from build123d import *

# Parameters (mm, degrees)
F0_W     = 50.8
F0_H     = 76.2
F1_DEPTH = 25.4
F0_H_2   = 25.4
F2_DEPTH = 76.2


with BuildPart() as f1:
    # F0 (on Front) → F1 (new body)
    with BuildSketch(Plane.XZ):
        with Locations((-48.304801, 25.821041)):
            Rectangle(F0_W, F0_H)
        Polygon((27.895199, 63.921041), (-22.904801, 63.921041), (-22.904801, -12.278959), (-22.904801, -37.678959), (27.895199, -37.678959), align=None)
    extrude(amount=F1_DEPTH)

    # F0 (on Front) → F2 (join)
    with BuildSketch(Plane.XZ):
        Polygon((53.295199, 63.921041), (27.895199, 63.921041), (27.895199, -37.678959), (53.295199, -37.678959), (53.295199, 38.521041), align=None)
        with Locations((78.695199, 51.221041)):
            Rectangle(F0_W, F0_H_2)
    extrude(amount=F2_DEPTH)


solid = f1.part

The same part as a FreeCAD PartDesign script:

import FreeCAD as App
import Part
import Sketcher
Q = App.Units.Quantity

doc = App.newDocument("Part")
params = doc.addObject("Spreadsheet::Sheet", "Params")
for row, (alias, value) in enumerate([
    ("sketch1_width", "2 in"),
    ("sketch1_height", "3 in"),
    ("pad1_length", "1 in"),
    ("sketch2_width", "1 in"),
    ("sketch2_width2", "2 in"),
    ("pad2_length", "3 in"),
], start=1):
    params.set(f"A{row}", alias)
    params.set(f"B{row}", "=" + value)
    params.setAlias(f"B{row}", alias)

body = doc.addObject("PartDesign::Body", "Body")

# Sketch on XZ plane
sketch1 = doc.addObject("Sketcher::SketchObject", "Sketch")
body.addObject(sketch1)
sketch1.AttachmentSupport = (doc.XZ_Plane, [""])
sketch1.MapMode = "FlatFace"
sketch1.addGeometry([
    Part.LineSegment(App.Vector(-73.704801, 63.921041, 0), App.Vector(-73.704801, -12.278959, 0)),  # 0
    Part.LineSegment(App.Vector(-73.704801, -12.278959, 0), App.Vector(-22.904801, -12.278959, 0)),  # 1
    Part.LineSegment(App.Vector(-22.904801, -12.278959, 0), App.Vector(-22.904801, -37.678959, 0)),  # 2
    Part.LineSegment(App.Vector(-22.904801, -37.678959, 0), App.Vector(27.895199, -37.678959, 0)),  # 3
    Part.LineSegment(App.Vector(27.895199, -37.678959, 0), App.Vector(27.895199, 63.921041, 0)),  # 4
    Part.LineSegment(App.Vector(27.895199, 63.921041, 0), App.Vector(-73.704801, 63.921041, 0)),  # 5
], False)
sketch1.addConstraint([
    Sketcher.Constraint("Coincident", 0, 2, 1, 1),
    Sketcher.Constraint("Coincident", 1, 2, 2, 1),
    Sketcher.Constraint("Coincident", 2, 2, 3, 1),
    Sketcher.Constraint("Coincident", 3, 2, 4, 1),
    Sketcher.Constraint("Coincident", 4, 2, 5, 1),
    Sketcher.Constraint("Coincident", 5, 2, 0, 1),
    Sketcher.Constraint("Vertical", 0),
    Sketcher.Constraint("Horizontal", 1),
    Sketcher.Constraint("Vertical", 2),
    Sketcher.Constraint("Horizontal", 3),
    Sketcher.Constraint("Vertical", 4),
    Sketcher.Constraint("Horizontal", 5),
    Sketcher.Constraint("Equal", 1, 3),
    Sketcher.Constraint("Equal", 5, 4),
    Sketcher.Constraint("DistanceX", 1, 1, 1, 2, Q("2 in")),
    Sketcher.Constraint("DistanceY", 0, 2, 0, 1, Q("3 in")),
    Sketcher.Constraint("DistanceX", 0, 2, -1, 1, 73.704801),
    Sketcher.Constraint("DistanceY", 0, 2, -1, 1, 12.278959),
])
sketch1.setExpression("Constraints[14]", "Params.sketch1_width")
sketch1.setExpression("Constraints[15]", "Params.sketch1_height")
pad1 = doc.addObject("PartDesign::Pad", "Pad")
body.addObject(pad1)
pad1.Profile = sketch1
pad1.setExpression("Length", "Params.pad1_length")

# Sketch on XZ plane
sketch2 = doc.addObject("Sketcher::SketchObject", "Sketch001")
body.addObject(sketch2)
sketch2.AttachmentSupport = (doc.XZ_Plane, [""])
sketch2.MapMode = "FlatFace"
sketch2.addGeometry([
    Part.LineSegment(App.Vector(27.895199, 63.921041, 0), App.Vector(27.895199, -37.678959, 0)),  # 0
    Part.LineSegment(App.Vector(27.895199, -37.678959, 0), App.Vector(53.295199, -37.678959, 0)),  # 1
    Part.LineSegment(App.Vector(53.295199, -37.678959, 0), App.Vector(53.295199, 38.521041, 0)),  # 2
    Part.LineSegment(App.Vector(53.295199, 38.521041, 0), App.Vector(104.095199, 38.521041, 0)),  # 3
    Part.LineSegment(App.Vector(104.095199, 38.521041, 0), App.Vector(104.095199, 63.921041, 0)),  # 4
    Part.LineSegment(App.Vector(104.095199, 63.921041, 0), App.Vector(27.895199, 63.921041, 0)),  # 5
], False)
sketch2.addConstraint([
    Sketcher.Constraint("Coincident", 0, 2, 1, 1),
    Sketcher.Constraint("Coincident", 1, 2, 2, 1),
    Sketcher.Constraint("Coincident", 2, 2, 3, 1),
    Sketcher.Constraint("Coincident", 3, 2, 4, 1),
    Sketcher.Constraint("Coincident", 4, 2, 5, 1),
    Sketcher.Constraint("Coincident", 5, 2, 0, 1),
    Sketcher.Constraint("Vertical", 0),
    Sketcher.Constraint("Horizontal", 1),
    Sketcher.Constraint("Vertical", 2),
    Sketcher.Constraint("Horizontal", 3),
    Sketcher.Constraint("Vertical", 4),
    Sketcher.Constraint("Horizontal", 5),
    Sketcher.Constraint("Equal", 5, 2),
    Sketcher.Constraint("Equal", 1, 4),
    Sketcher.Constraint("DistanceX", 1, 1, 1, 2, Q("1 in")),
    Sketcher.Constraint("DistanceX", 3, 1, 3, 2, Q("2 in")),
    Sketcher.Constraint("DistanceX", -1, 1, 0, 2, 27.895199),
    Sketcher.Constraint("DistanceY", 0, 2, -1, 1, 37.678959),
])
sketch2.setExpression("Constraints[14]", "Params.sketch2_width")
sketch2.setExpression("Constraints[15]", "Params.sketch2_width2")
pad2 = doc.addObject("PartDesign::Pad", "Pad001")
body.addObject(pad2)
pad2.Profile = sketch2
pad2.setExpression("Length", "Params.pad2_length")

doc.recompute()
